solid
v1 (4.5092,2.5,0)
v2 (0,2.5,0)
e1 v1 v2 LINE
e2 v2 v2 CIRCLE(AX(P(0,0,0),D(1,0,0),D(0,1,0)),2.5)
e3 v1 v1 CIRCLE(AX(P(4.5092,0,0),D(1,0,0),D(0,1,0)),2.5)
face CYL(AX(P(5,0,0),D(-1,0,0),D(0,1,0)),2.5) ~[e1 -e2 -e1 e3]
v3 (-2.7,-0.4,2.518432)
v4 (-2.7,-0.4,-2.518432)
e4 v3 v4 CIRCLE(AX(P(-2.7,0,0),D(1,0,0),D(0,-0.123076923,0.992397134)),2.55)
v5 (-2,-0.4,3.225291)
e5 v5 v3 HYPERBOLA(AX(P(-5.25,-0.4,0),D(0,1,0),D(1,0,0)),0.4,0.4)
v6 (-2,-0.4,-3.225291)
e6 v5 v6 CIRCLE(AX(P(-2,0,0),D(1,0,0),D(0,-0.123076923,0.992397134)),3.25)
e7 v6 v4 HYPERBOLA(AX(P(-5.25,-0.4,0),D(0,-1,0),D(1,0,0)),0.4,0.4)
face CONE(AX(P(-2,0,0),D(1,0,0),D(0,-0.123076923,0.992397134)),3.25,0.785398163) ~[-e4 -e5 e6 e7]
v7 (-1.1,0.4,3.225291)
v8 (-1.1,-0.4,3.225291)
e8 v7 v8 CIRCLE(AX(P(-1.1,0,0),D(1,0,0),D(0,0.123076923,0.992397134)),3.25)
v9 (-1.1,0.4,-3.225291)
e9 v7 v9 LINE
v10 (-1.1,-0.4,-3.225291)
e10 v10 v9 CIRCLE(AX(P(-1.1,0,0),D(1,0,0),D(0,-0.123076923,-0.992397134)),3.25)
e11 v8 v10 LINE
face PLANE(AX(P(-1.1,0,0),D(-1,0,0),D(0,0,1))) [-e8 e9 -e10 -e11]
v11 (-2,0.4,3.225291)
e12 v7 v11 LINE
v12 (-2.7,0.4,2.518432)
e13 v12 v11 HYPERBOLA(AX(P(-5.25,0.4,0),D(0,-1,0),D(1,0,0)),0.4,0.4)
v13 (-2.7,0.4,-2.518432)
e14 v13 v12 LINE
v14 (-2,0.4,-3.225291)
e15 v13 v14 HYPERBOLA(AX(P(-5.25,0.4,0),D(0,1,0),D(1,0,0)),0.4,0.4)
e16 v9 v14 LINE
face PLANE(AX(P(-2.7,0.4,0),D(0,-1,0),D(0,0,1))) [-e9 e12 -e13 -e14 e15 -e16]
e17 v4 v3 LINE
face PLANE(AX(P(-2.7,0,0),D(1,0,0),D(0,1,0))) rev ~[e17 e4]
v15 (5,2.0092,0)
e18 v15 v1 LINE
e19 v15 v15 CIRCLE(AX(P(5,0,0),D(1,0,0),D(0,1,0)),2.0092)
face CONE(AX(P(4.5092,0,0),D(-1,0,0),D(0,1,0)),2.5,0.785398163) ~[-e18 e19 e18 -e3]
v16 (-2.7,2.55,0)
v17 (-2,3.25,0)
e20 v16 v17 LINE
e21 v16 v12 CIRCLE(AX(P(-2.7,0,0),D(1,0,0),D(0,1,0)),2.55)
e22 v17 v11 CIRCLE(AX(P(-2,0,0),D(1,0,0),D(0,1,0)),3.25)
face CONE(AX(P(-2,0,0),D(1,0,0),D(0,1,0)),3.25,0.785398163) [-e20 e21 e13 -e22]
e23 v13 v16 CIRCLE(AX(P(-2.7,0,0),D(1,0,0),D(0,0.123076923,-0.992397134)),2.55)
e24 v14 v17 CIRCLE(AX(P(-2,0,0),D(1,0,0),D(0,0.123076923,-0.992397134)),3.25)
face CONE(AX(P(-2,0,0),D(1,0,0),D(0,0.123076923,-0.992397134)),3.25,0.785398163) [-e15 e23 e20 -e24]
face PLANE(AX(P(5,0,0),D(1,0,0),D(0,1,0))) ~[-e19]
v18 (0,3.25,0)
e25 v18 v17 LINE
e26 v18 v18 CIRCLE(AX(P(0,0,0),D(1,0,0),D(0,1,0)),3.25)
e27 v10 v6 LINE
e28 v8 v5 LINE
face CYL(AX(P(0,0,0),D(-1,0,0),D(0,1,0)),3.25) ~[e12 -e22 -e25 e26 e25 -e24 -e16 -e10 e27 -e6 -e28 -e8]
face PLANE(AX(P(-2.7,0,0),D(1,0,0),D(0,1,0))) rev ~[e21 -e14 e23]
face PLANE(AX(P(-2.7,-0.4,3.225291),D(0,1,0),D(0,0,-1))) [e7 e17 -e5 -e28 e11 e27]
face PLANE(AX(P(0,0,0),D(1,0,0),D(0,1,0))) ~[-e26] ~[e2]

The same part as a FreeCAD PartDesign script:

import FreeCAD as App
import Part
import Sketcher
Q = App.Units.Quantity


def edges_at(feature, points):
    """Names of the edges that pass closest to the given points."""
    edges = feature.Shape.Edges
    near = lambda p: min(range(len(edges)), key=lambda i: edges[i].distToShape(Part.Vertex(*p))[0])
    return sorted({f"Edge{near(p) + 1}" for p in points})

doc = App.newDocument("Part")
params = doc.addObject("Spreadsheet::Sheet", "Params")
for row, (alias, value) in enumerate([
    ("sketch1_width", "5 mm"),
    ("sketch1_width2", "2.7 mm"),
    ("sketch1_height", "2.5 mm"),
    ("sketch1_height2", "3.25 mm"),
    ("revolution_angle", "360 deg"),
    ("sketch2_width", "0.8 mm"),
    ("sketch2_height", "6.5 mm"),
    ("pocket1_length", "1.6 mm"),
    ("chamfer_size", "0.7 mm"),
    ("chamfer2_size", "0.4908 mm"),
    ("chamfer2_size2", "0.4908 mm"),
], start=1):
    params.set(f"A{row}", alias)
    params.set(f"B{row}", "=" + value)
    params.setAlias(f"B{row}", alias)

body = doc.addObject("PartDesign::Body", "Body")

sketch1 = body.newObject("Sketcher::SketchObject", "Sketch")
sketch1.AttachmentSupport = (doc.getObject("XY_Plane"), [""])
sketch1.MapMode = "FlatFace"
sketch1.addGeometry([
    Part.LineSegment(App.Vector(-2.7, 3.2, 0), App.Vector(-2.7, 0, 0)),
    Part.LineSegment(App.Vector(-2.7, 0, 0), App.Vector(5, 0, 0)),
    Part.LineSegment(App.Vector(5, 0, 0), App.Vector(5, 2.5, 0)),
    Part.LineSegment(App.Vector(5, 2.5, 0), App.Vector(0, 2.5, 0)),
    Part.LineSegment(App.Vector(0, 2.5, 0), App.Vector(0, 3.2, 0)),
    Part.LineSegment(App.Vector(0, 3.2, 0), App.Vector(-2.7, 3.2, 0)),
], False)
sketch1.addConstraint([
    Sketcher.Constraint("Coincident", 0, 2, 1, 1),
    Sketcher.Constraint("Coincident", 1, 2, 2, 1),
    Sketcher.Constraint("Coincident", 2, 2, 3, 1),
    Sketcher.Constraint("Coincident", 3, 2, 4, 1),
    Sketcher.Constraint("Coincident", 4, 2, 5, 1),
    Sketcher.Constraint("Coincident", 5, 2, 0, 1),
    Sketcher.Constraint("Vertical", 0),
    Sketcher.Constraint("Horizontal", 1),
    Sketcher.Constraint("Vertical", 2),
    Sketcher.Constraint("Horizontal", 3),
    Sketcher.Constraint("Vertical", 4),
    Sketcher.Constraint("Horizontal", 5),
    Sketcher.Constraint("PointOnObject", 0, 2, -1),
    Sketcher.Constraint("PointOnObject", 3, 2, -2),
    Sketcher.Constraint("DistanceX", 3, 2, 3, 1, Q("5 mm")),
    Sketcher.Constraint("DistanceX", 5, 2, 5, 1, Q("2.7 mm")),
    Sketcher.Constraint("DistanceY", 2, 1, 2, 2, Q("2.5 mm")),
    Sketcher.Constraint("DistanceY", 0, 2, 0, 1, Q("3.25 mm")),
])
sketch1.setExpression("Constraints[14]", "Params.sketch1_width")
sketch1.setExpression("Constraints[15]", "Params.sketch1_width2")
sketch1.setExpression("Constraints[16]", "Params.sketch1_height")
sketch1.setExpression("Constraints[17]", "Params.sketch1_height2")
revolution = body.newObject("PartDesign::Revolution", "Revolution")
revolution.Profile = sketch1
revolution.ReferenceAxis = (sketch1, ["H_Axis"])
revolution.setExpression("Angle", "Params.revolution_angle")

sketch2 = body.newObject("Sketcher::SketchObject", "Sketch001")
sketch2.AttachmentSupport = (doc.getObject("YZ_Plane"), [""])
sketch2.MapMode = "FlatFace"
sketch2.AttachmentOffset = App.Placement(App.Vector(0, 0, -2.7), App.Rotation())
sketch2.addGeometry([
    Part.LineSegment(App.Vector(0.4, -3.2, 0), App.Vector(-0.4, -3.2, 0)),
    Part.LineSegment(App.Vector(-0.4, -3.2, 0), App.Vector(-0.4, 3.2, 0)),
    Part.LineSegment(App.Vector(-0.4, 3.2, 0), App.Vector(0.4, 3.2, 0)),
    Part.LineSegment(App.Vector(0.4, 3.2, 0), App.Vector(0.4, -3.2, 0)),
], False)
sketch2.addConstraint([
    Sketcher.Constraint("Coincident", 0, 2, 1, 1),
    Sketcher.Constraint("Coincident", 1, 2, 2, 1),
    Sketcher.Constraint("Coincident", 2, 2, 3, 1),
    Sketcher.Constraint("Coincident", 3, 2, 0, 1),
    Sketcher.Constraint("Horizontal", 0),
    Sketcher.Constraint("Vertical", 1),
    Sketcher.Constraint("Horizontal", 2),
    Sketcher.Constraint("Vertical", 3),
    Sketcher.Constraint("Symmetric", 0, 2, 2, 2, -1, 1),
    Sketcher.Constraint("DistanceX", 0, 2, 0, 1, Q("0.8 mm")),
    Sketcher.Constraint("DistanceY", 1, 1, 1, 2, Q("6.5 mm")),
])
sketch2.setExpression("Constraints[9]", "Params.sketch2_width")
sketch2.setExpression("Constraints[10]", "Params.sketch2_height")
pocket1 = body.newObject("PartDesign::Pocket", "Pocket")
pocket1.Profile = sketch2
pocket1.setExpression("Length", "Params.pocket1_length")
pocket1.Reversed = True
doc.recompute()

chamfer = body.newObject("PartDesign::Chamfer", "Chamfer")
chamfer.Base = (pocket1, edges_at(pocket1, [(-2.7, -3.25, 0), (-2.7, 2.435, -2.152), (-2.7, 2.435, 2.152)]))
chamfer.setExpression("Size", "Params.chamfer_size")
doc.recompute()

chamfer2 = body.newObject("PartDesign::Chamfer", "Chamfer001")
chamfer2.Base = (chamfer, edges_at(chamfer, [(5, -2.5, 0)]))
chamfer2.ChamferType = "Two distances"
chamfer2.setExpression("Size", "Params.chamfer2_size")
chamfer2.setExpression("Size2", "Params.chamfer2_size2")

doc.recompute()
